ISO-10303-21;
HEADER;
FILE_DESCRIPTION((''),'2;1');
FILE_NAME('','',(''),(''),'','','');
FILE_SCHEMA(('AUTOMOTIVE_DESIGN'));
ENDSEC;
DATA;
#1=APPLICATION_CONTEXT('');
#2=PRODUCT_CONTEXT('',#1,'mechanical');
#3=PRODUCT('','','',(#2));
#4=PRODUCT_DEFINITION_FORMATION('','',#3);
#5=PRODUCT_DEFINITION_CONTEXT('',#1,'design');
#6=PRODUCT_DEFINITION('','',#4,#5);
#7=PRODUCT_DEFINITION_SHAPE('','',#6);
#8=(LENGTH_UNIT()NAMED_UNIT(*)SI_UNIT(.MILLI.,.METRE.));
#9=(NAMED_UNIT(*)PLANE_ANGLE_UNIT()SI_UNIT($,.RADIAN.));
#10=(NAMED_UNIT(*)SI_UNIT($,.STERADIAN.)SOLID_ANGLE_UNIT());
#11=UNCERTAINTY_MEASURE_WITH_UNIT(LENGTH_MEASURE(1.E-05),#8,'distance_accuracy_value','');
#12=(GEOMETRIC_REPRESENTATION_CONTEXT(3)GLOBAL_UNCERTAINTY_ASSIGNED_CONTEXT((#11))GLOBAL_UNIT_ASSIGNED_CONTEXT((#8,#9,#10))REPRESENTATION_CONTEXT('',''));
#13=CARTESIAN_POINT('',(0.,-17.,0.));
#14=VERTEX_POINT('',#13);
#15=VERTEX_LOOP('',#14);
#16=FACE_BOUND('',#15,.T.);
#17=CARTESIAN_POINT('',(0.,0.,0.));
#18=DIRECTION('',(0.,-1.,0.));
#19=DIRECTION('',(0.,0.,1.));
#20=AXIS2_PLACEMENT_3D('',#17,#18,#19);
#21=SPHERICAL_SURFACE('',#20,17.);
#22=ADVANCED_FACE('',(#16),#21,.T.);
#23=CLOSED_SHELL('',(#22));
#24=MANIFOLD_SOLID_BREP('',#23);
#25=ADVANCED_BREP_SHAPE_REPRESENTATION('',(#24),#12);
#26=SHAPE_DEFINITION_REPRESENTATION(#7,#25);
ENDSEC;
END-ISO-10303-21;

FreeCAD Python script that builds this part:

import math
import FreeCAD as App
import Part
import Sketcher

V = App.Vector
Q = App.Units.Quantity

doc = App.newDocument("Part")
body = doc.addObject("PartDesign::Body", "Body")

sketch1 = body.newObject("Sketcher::SketchObject", "Sketch")
sketch1.AttachmentSupport = (doc.getObject("YZ_Plane"), [""])
sketch1.MapMode = "FlatFace"
sketch1.addGeometry(Part.LineSegment(V(-17, 0, 0), V(17, 0, 0)), False)
sketch1.addGeometry(Part.ArcOfCircle(Part.Circle(V(0, 0, 0), V(0, 0, 1), 17), math.radians(0), math.radians(180)), False)
sketch1.addConstraint(Sketcher.Constraint("Coincident", 0, 1, 1, 2))
sketch1.addConstraint(Sketcher.Constraint("Coincident", 1, 1, 0, 2))
sketch1.addConstraint(Sketcher.Constraint("Horizontal", 0))
sketch1.addConstraint(Sketcher.Constraint("Coincident", 1, 3, -1, 1))
sketch1.addConstraint(Sketcher.Constraint("PointOnObject", 0, 1, -1))
sketch1.addConstraint(Sketcher.Constraint("Radius", 1, Q("17 mm")))
revolution = body.newObject("PartDesign::Revolution", "Revolution")
revolution.Profile = sketch1
revolution.ReferenceAxis = (sketch1, ["H_Axis"])
revolution.Angle = 360

doc.recompute()
